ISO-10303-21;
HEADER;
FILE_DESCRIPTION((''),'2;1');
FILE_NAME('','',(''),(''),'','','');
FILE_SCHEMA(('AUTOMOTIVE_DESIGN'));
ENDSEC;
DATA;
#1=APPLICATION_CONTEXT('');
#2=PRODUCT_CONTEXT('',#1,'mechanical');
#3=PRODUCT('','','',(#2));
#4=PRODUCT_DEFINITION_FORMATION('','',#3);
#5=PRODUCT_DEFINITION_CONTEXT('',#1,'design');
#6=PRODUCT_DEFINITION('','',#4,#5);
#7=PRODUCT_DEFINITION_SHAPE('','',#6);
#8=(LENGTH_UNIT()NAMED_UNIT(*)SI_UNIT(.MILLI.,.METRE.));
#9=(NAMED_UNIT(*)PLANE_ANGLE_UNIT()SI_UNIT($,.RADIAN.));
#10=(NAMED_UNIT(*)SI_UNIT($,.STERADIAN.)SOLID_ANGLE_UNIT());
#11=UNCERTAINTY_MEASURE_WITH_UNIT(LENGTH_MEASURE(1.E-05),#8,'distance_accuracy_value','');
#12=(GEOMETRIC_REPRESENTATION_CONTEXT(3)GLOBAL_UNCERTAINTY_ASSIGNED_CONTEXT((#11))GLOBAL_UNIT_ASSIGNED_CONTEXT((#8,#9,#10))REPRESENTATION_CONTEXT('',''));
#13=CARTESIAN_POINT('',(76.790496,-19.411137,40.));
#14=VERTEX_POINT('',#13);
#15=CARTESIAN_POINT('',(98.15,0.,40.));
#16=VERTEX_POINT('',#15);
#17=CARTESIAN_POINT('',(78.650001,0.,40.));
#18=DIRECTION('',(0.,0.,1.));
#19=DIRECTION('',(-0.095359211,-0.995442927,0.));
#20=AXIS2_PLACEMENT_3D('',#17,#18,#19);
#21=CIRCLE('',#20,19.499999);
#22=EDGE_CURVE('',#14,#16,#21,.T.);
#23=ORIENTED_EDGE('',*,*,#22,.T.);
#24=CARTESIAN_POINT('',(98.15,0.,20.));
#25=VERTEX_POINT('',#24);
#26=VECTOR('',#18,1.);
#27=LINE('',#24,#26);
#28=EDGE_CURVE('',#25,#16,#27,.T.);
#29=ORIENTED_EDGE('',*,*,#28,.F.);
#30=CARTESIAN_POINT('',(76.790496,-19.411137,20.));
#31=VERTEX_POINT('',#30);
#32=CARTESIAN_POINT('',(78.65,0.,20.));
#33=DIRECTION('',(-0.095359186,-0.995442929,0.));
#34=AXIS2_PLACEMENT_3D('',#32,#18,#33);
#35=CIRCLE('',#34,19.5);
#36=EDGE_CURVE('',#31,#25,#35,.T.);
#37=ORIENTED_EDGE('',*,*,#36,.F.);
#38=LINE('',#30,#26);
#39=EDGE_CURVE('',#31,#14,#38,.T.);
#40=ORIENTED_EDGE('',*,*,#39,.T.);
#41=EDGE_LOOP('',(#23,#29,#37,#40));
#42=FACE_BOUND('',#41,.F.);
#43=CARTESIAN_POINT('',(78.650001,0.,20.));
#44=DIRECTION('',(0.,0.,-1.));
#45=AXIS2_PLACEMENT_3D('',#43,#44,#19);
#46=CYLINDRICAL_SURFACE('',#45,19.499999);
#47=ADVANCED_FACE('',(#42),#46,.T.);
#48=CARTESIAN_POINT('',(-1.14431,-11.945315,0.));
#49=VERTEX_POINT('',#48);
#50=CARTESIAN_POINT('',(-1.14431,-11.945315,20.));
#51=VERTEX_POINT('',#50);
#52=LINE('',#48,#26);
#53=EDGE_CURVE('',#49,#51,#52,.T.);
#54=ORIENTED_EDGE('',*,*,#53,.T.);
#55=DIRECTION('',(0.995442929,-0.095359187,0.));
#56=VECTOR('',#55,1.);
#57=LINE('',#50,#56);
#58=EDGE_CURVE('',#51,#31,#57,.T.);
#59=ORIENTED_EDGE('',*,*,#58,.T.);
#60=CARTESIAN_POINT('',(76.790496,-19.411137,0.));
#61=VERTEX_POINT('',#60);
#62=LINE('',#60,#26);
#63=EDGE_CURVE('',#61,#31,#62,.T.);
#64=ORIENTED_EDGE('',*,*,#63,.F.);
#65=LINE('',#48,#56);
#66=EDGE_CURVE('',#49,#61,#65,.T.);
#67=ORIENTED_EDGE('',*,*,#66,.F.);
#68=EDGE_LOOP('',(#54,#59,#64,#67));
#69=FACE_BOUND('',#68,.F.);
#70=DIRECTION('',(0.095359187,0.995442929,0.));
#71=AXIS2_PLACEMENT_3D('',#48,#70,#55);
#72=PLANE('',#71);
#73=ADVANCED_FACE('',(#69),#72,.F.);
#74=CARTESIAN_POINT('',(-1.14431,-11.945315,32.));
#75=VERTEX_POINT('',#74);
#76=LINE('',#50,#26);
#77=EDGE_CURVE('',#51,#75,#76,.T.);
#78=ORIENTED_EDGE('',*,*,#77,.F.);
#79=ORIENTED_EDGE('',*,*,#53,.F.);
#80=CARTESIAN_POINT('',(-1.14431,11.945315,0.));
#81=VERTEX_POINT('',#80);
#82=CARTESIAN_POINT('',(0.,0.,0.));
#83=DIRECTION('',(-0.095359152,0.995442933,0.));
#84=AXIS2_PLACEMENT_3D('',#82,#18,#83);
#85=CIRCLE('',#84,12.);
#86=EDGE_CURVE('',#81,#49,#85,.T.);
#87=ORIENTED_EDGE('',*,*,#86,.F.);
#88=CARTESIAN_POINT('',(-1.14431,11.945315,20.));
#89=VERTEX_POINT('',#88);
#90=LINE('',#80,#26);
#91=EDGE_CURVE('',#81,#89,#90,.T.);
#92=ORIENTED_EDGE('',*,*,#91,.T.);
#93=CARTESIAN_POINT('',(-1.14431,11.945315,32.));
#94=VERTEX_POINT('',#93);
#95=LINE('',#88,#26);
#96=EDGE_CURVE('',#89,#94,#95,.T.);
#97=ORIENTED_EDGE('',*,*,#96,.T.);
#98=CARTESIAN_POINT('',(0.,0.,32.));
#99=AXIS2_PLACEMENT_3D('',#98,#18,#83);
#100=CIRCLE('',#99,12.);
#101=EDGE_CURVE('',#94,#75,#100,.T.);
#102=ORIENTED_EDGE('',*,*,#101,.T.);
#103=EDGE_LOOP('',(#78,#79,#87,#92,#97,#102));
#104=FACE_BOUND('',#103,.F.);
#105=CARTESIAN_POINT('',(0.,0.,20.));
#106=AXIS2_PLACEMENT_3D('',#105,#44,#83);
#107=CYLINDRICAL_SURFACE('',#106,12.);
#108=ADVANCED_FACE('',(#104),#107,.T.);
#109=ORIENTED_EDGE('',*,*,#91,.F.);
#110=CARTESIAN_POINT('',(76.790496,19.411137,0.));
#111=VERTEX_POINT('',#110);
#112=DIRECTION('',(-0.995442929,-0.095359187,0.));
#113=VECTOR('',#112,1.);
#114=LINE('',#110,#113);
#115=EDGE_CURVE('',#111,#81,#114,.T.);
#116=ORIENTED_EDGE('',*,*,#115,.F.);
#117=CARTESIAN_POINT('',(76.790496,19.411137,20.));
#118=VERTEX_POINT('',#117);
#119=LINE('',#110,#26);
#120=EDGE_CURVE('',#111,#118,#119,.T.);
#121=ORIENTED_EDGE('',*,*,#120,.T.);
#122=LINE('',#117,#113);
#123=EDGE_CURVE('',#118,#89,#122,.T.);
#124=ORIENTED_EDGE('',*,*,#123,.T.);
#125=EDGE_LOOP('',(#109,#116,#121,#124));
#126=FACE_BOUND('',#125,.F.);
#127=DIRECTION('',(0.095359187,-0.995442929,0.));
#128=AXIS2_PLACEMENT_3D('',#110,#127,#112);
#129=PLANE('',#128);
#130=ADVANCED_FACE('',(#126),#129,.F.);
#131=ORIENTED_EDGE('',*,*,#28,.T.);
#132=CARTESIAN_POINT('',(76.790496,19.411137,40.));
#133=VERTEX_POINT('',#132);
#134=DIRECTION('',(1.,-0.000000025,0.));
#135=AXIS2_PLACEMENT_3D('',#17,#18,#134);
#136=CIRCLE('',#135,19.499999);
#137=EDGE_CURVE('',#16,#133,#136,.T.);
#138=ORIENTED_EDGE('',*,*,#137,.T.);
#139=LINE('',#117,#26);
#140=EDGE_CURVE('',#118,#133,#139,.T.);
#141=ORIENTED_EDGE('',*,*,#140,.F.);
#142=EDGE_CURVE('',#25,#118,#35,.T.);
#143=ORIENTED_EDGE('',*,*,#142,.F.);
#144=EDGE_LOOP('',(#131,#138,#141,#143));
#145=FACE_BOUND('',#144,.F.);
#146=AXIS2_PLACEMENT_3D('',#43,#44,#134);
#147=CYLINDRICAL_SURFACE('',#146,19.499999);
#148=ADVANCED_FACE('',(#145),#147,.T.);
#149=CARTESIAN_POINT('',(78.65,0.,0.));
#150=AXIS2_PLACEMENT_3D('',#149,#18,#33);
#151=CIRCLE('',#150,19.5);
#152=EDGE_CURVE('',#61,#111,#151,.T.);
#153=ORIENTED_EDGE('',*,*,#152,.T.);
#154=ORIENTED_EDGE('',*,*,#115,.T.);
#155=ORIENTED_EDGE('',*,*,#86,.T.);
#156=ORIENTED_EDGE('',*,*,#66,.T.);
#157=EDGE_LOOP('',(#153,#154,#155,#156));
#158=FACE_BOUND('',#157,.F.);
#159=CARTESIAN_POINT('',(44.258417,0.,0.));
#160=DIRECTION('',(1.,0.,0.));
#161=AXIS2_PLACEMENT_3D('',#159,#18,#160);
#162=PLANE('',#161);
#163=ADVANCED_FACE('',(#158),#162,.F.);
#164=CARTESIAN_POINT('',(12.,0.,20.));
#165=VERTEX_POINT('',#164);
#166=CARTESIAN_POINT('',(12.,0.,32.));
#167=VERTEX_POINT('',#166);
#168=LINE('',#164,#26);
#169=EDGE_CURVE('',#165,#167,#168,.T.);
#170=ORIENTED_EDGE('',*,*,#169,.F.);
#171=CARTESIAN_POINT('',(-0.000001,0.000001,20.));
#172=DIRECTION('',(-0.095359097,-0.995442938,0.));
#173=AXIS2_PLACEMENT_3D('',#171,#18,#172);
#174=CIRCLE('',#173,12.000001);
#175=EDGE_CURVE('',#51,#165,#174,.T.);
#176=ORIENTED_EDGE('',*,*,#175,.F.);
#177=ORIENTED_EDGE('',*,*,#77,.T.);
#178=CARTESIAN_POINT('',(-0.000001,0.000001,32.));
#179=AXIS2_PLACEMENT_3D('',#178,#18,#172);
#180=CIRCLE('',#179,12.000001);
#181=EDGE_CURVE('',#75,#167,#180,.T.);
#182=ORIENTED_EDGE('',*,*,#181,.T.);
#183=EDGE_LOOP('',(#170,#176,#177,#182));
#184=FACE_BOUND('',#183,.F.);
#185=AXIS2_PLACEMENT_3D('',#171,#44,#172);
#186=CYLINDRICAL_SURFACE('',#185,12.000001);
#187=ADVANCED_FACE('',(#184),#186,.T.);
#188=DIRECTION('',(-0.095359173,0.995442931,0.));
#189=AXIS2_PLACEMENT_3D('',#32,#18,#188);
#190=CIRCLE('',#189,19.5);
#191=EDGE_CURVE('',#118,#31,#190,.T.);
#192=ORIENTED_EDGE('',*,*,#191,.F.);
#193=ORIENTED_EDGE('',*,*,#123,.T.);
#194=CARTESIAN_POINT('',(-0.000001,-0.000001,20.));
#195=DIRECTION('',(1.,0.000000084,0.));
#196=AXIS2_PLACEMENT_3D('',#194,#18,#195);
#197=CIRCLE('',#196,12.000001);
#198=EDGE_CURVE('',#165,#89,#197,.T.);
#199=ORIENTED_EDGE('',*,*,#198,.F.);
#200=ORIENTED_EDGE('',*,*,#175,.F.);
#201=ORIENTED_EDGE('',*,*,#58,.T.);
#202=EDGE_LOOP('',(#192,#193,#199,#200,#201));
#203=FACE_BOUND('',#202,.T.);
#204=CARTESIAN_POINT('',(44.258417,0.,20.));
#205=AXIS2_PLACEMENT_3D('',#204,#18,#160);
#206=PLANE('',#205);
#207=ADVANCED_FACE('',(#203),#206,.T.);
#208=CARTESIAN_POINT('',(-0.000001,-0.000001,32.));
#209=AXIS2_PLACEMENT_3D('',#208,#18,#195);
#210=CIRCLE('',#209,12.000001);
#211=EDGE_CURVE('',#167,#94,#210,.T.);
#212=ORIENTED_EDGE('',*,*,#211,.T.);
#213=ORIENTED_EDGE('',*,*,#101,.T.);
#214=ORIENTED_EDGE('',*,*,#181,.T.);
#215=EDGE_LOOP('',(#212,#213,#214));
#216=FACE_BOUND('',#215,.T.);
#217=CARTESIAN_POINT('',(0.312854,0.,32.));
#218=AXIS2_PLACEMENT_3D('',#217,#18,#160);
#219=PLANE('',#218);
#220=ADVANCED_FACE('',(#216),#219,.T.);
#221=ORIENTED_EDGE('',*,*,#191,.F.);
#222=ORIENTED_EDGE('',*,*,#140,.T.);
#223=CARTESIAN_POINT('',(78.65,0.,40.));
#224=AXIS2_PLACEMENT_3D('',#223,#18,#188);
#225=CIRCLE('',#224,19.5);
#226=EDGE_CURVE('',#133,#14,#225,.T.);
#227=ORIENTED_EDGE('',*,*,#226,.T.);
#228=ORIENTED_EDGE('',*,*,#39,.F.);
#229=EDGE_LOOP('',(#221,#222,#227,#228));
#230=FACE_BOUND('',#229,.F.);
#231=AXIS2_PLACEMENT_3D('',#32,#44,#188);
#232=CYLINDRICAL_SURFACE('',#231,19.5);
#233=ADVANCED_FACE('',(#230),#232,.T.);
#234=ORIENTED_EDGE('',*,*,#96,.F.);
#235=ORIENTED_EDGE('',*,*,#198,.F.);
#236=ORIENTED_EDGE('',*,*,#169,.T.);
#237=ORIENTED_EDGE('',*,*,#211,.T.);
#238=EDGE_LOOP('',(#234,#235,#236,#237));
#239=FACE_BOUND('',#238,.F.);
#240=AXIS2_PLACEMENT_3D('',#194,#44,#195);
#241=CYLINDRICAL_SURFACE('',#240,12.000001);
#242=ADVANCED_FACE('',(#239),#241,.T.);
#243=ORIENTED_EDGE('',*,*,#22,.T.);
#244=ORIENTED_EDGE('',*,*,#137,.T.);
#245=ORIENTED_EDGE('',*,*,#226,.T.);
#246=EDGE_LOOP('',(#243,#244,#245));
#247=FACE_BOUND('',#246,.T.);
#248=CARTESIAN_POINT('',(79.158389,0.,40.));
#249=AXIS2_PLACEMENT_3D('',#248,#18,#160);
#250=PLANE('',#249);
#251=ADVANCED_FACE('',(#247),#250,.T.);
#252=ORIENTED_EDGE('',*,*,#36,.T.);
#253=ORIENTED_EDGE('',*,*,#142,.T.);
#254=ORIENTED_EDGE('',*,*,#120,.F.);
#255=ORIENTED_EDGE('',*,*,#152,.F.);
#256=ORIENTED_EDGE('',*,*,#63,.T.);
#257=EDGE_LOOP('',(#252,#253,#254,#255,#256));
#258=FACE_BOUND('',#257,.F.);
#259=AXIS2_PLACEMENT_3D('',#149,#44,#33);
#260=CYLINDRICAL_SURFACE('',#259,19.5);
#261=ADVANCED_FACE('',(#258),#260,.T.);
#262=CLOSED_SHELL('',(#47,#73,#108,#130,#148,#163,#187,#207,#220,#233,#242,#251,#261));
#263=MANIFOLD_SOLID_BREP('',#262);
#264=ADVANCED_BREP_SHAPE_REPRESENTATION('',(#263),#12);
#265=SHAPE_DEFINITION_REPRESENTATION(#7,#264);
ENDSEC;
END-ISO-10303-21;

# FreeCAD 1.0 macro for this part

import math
import FreeCAD as App
import Part
import Sketcher

doc = App.newDocument("Part")
params = doc.addObject("Spreadsheet::Sheet", "Params")
for row, (alias, value) in enumerate([
    ("sketch1_radius", "12 mm"),
    ("sketch1_radius2", "19.5 mm"),
    ("pad1_length", "20 mm"),
    ("sketch2_radius", "19.499999 mm"),
    ("pad2_length", "20 mm"),
    ("sketch3_radius", "12.000001 mm"),
    ("pad3_length", "12 mm"),
], start=1):
    params.set(f"A{row}", alias)
    params.set(f"B{row}", "=" + value)
    params.setAlias(f"B{row}", alias)

body = doc.addObject("PartDesign::Body", "Body")

# Sketch on XY plane
sketch1 = body.newObject("Sketcher::SketchObject", "Sketch")
sketch1.AttachmentSupport = (doc.getObject("XY_Plane"), [""])
sketch1.MapMode = "FlatFace"
sketch1.addGeometry([
    Part.LineSegment(App.Vector(77, 19, 0), App.Vector(-1, 12, 0)),
    Part.ArcOfCircle(Part.Circle(App.Vector(0, 0, 0), App.Vector(0, 0, 1), 12), math.radians(95), math.radians(265)),
    Part.LineSegment(App.Vector(-1, -12, 0), App.Vector(77, -19, 0)),
    Part.ArcOfCircle(Part.Circle(App.Vector(79, 0, 0), App.Vector(0, 0, 1), 19), math.radians(-95), math.radians(95)),
], False)
sketch1.addConstraint([
    Sketcher.Constraint("Tangent", 0, 2, 1, 1),
    Sketcher.Constraint("Tangent", 1, 2, 2, 1),
    Sketcher.Constraint("Tangent", 2, 2, 3, 1),
    Sketcher.Constraint("Tangent", 3, 2, 0, 1),
    Sketcher.Constraint("Coincident", 1, 3, -1, 1),
    Sketcher.Constraint("PointOnObject", 3, 3, -1),
    Sketcher.Constraint("Radius", 1, 12.0),
    Sketcher.Constraint("Radius", 3, 19.5),
    Sketcher.Constraint("DistanceX", -1, 1, 3, 3, 78.65),
])
sketch1.setExpression("Constraints[6]", "Params.sketch1_radius")
sketch1.setExpression("Constraints[7]", "Params.sketch1_radius2")
pad1 = body.newObject("PartDesign::Pad", "Pad")
pad1.Profile = sketch1
pad1.setExpression("Length", "Params.pad1_length")

# Sketch on XY plane
sketch2 = body.newObject("Sketcher::SketchObject", "Sketch001")
sketch2.AttachmentSupport = (doc.getObject("XY_Plane"), [""])
sketch2.MapMode = "FlatFace"
sketch2.AttachmentOffset = App.Placement(App.Vector(0, 0, 20), App.Rotation())
sketch2.addGeometry([
    Part.ArcOfCircle(Part.Circle(App.Vector(79, 0, 0), App.Vector(0, 0, 1), 19), math.radians(-95), math.radians(0)),
    Part.ArcOfCircle(Part.Circle(App.Vector(79, 0, 0), App.Vector(0, 0, 1), 19), math.radians(0), math.radians(95)),
    Part.ArcOfCircle(Part.Circle(App.Vector(79, 0, 0), App.Vector(0, 0, 1), 19), math.radians(95), math.radians(265)),
], False)
sketch2.addConstraint([
    Sketcher.Constraint("Tangent", 0, 2, 1, 1),
    Sketcher.Constraint("Tangent", 1, 2, 2, 1),
    Sketcher.Constraint("Tangent", 2, 2, 0, 1),
    Sketcher.Constraint("Symmetric", 1, 2, 2, 2, -1),
    Sketcher.Constraint("PointOnObject", 0, 2, -1),
    Sketcher.Constraint("Radius", 0, 19.499999),
    Sketcher.Constraint("DistanceX", -1, 1, 0, 3, 78.650001),
    Sketcher.Constraint("DistanceX", -1, 1, 1, 2, 76.790496),
])
sketch2.setExpression("Constraints[5]", "Params.sketch2_radius")
pad2 = body.newObject("PartDesign::Pad", "Pad001")
pad2.Profile = sketch2
pad2.setExpression("Length", "Params.pad2_length")

# Sketch on XY plane
sketch3 = body.newObject("Sketcher::SketchObject", "Sketch002")
sketch3.AttachmentSupport = (doc.getObject("XY_Plane"), [""])
sketch3.MapMode = "FlatFace"
sketch3.AttachmentOffset = App.Placement(App.Vector(0, 0, 20), App.Rotation())
sketch3.addGeometry([
    Part.ArcOfCircle(Part.Circle(App.Vector(0, 0, 0), App.Vector(0, 0, 1), 12), math.radians(-95), math.radians(0)),
    Part.ArcOfCircle(Part.Circle(App.Vector(0, 0, 0), App.Vector(0, 0, 1), 12), math.radians(0), math.radians(95)),
    Part.ArcOfCircle(Part.Circle(App.Vector(0, 0, 0), App.Vector(0, 0, 1), 12), math.radians(95), math.radians(265)),
], False)
sketch3.addConstraint([
    Sketcher.Constraint("Tangent", 0, 2, 1, 1),
    Sketcher.Constraint("Tangent", 1, 2, 2, 1),
    Sketcher.Constraint("Tangent", 2, 2, 0, 1),
    Sketcher.Constraint("Coincident", 0, 3, -1, 1),
    Sketcher.Constraint("PointOnObject", 0, 2, -1),
    Sketcher.Constraint("Vertical", 1, 2, 2, 2),
    Sketcher.Constraint("Radius", 0, 12.000001),
    Sketcher.Constraint("DistanceX", 1, 2, -1, 1, 1.14431),
])
sketch3.setExpression("Constraints[6]", "Params.sketch3_radius")
pad3 = body.newObject("PartDesign::Pad", "Pad002")
pad3.Profile = sketch3
pad3.setExpression("Length", "Params.pad3_length")

doc.recompute()
